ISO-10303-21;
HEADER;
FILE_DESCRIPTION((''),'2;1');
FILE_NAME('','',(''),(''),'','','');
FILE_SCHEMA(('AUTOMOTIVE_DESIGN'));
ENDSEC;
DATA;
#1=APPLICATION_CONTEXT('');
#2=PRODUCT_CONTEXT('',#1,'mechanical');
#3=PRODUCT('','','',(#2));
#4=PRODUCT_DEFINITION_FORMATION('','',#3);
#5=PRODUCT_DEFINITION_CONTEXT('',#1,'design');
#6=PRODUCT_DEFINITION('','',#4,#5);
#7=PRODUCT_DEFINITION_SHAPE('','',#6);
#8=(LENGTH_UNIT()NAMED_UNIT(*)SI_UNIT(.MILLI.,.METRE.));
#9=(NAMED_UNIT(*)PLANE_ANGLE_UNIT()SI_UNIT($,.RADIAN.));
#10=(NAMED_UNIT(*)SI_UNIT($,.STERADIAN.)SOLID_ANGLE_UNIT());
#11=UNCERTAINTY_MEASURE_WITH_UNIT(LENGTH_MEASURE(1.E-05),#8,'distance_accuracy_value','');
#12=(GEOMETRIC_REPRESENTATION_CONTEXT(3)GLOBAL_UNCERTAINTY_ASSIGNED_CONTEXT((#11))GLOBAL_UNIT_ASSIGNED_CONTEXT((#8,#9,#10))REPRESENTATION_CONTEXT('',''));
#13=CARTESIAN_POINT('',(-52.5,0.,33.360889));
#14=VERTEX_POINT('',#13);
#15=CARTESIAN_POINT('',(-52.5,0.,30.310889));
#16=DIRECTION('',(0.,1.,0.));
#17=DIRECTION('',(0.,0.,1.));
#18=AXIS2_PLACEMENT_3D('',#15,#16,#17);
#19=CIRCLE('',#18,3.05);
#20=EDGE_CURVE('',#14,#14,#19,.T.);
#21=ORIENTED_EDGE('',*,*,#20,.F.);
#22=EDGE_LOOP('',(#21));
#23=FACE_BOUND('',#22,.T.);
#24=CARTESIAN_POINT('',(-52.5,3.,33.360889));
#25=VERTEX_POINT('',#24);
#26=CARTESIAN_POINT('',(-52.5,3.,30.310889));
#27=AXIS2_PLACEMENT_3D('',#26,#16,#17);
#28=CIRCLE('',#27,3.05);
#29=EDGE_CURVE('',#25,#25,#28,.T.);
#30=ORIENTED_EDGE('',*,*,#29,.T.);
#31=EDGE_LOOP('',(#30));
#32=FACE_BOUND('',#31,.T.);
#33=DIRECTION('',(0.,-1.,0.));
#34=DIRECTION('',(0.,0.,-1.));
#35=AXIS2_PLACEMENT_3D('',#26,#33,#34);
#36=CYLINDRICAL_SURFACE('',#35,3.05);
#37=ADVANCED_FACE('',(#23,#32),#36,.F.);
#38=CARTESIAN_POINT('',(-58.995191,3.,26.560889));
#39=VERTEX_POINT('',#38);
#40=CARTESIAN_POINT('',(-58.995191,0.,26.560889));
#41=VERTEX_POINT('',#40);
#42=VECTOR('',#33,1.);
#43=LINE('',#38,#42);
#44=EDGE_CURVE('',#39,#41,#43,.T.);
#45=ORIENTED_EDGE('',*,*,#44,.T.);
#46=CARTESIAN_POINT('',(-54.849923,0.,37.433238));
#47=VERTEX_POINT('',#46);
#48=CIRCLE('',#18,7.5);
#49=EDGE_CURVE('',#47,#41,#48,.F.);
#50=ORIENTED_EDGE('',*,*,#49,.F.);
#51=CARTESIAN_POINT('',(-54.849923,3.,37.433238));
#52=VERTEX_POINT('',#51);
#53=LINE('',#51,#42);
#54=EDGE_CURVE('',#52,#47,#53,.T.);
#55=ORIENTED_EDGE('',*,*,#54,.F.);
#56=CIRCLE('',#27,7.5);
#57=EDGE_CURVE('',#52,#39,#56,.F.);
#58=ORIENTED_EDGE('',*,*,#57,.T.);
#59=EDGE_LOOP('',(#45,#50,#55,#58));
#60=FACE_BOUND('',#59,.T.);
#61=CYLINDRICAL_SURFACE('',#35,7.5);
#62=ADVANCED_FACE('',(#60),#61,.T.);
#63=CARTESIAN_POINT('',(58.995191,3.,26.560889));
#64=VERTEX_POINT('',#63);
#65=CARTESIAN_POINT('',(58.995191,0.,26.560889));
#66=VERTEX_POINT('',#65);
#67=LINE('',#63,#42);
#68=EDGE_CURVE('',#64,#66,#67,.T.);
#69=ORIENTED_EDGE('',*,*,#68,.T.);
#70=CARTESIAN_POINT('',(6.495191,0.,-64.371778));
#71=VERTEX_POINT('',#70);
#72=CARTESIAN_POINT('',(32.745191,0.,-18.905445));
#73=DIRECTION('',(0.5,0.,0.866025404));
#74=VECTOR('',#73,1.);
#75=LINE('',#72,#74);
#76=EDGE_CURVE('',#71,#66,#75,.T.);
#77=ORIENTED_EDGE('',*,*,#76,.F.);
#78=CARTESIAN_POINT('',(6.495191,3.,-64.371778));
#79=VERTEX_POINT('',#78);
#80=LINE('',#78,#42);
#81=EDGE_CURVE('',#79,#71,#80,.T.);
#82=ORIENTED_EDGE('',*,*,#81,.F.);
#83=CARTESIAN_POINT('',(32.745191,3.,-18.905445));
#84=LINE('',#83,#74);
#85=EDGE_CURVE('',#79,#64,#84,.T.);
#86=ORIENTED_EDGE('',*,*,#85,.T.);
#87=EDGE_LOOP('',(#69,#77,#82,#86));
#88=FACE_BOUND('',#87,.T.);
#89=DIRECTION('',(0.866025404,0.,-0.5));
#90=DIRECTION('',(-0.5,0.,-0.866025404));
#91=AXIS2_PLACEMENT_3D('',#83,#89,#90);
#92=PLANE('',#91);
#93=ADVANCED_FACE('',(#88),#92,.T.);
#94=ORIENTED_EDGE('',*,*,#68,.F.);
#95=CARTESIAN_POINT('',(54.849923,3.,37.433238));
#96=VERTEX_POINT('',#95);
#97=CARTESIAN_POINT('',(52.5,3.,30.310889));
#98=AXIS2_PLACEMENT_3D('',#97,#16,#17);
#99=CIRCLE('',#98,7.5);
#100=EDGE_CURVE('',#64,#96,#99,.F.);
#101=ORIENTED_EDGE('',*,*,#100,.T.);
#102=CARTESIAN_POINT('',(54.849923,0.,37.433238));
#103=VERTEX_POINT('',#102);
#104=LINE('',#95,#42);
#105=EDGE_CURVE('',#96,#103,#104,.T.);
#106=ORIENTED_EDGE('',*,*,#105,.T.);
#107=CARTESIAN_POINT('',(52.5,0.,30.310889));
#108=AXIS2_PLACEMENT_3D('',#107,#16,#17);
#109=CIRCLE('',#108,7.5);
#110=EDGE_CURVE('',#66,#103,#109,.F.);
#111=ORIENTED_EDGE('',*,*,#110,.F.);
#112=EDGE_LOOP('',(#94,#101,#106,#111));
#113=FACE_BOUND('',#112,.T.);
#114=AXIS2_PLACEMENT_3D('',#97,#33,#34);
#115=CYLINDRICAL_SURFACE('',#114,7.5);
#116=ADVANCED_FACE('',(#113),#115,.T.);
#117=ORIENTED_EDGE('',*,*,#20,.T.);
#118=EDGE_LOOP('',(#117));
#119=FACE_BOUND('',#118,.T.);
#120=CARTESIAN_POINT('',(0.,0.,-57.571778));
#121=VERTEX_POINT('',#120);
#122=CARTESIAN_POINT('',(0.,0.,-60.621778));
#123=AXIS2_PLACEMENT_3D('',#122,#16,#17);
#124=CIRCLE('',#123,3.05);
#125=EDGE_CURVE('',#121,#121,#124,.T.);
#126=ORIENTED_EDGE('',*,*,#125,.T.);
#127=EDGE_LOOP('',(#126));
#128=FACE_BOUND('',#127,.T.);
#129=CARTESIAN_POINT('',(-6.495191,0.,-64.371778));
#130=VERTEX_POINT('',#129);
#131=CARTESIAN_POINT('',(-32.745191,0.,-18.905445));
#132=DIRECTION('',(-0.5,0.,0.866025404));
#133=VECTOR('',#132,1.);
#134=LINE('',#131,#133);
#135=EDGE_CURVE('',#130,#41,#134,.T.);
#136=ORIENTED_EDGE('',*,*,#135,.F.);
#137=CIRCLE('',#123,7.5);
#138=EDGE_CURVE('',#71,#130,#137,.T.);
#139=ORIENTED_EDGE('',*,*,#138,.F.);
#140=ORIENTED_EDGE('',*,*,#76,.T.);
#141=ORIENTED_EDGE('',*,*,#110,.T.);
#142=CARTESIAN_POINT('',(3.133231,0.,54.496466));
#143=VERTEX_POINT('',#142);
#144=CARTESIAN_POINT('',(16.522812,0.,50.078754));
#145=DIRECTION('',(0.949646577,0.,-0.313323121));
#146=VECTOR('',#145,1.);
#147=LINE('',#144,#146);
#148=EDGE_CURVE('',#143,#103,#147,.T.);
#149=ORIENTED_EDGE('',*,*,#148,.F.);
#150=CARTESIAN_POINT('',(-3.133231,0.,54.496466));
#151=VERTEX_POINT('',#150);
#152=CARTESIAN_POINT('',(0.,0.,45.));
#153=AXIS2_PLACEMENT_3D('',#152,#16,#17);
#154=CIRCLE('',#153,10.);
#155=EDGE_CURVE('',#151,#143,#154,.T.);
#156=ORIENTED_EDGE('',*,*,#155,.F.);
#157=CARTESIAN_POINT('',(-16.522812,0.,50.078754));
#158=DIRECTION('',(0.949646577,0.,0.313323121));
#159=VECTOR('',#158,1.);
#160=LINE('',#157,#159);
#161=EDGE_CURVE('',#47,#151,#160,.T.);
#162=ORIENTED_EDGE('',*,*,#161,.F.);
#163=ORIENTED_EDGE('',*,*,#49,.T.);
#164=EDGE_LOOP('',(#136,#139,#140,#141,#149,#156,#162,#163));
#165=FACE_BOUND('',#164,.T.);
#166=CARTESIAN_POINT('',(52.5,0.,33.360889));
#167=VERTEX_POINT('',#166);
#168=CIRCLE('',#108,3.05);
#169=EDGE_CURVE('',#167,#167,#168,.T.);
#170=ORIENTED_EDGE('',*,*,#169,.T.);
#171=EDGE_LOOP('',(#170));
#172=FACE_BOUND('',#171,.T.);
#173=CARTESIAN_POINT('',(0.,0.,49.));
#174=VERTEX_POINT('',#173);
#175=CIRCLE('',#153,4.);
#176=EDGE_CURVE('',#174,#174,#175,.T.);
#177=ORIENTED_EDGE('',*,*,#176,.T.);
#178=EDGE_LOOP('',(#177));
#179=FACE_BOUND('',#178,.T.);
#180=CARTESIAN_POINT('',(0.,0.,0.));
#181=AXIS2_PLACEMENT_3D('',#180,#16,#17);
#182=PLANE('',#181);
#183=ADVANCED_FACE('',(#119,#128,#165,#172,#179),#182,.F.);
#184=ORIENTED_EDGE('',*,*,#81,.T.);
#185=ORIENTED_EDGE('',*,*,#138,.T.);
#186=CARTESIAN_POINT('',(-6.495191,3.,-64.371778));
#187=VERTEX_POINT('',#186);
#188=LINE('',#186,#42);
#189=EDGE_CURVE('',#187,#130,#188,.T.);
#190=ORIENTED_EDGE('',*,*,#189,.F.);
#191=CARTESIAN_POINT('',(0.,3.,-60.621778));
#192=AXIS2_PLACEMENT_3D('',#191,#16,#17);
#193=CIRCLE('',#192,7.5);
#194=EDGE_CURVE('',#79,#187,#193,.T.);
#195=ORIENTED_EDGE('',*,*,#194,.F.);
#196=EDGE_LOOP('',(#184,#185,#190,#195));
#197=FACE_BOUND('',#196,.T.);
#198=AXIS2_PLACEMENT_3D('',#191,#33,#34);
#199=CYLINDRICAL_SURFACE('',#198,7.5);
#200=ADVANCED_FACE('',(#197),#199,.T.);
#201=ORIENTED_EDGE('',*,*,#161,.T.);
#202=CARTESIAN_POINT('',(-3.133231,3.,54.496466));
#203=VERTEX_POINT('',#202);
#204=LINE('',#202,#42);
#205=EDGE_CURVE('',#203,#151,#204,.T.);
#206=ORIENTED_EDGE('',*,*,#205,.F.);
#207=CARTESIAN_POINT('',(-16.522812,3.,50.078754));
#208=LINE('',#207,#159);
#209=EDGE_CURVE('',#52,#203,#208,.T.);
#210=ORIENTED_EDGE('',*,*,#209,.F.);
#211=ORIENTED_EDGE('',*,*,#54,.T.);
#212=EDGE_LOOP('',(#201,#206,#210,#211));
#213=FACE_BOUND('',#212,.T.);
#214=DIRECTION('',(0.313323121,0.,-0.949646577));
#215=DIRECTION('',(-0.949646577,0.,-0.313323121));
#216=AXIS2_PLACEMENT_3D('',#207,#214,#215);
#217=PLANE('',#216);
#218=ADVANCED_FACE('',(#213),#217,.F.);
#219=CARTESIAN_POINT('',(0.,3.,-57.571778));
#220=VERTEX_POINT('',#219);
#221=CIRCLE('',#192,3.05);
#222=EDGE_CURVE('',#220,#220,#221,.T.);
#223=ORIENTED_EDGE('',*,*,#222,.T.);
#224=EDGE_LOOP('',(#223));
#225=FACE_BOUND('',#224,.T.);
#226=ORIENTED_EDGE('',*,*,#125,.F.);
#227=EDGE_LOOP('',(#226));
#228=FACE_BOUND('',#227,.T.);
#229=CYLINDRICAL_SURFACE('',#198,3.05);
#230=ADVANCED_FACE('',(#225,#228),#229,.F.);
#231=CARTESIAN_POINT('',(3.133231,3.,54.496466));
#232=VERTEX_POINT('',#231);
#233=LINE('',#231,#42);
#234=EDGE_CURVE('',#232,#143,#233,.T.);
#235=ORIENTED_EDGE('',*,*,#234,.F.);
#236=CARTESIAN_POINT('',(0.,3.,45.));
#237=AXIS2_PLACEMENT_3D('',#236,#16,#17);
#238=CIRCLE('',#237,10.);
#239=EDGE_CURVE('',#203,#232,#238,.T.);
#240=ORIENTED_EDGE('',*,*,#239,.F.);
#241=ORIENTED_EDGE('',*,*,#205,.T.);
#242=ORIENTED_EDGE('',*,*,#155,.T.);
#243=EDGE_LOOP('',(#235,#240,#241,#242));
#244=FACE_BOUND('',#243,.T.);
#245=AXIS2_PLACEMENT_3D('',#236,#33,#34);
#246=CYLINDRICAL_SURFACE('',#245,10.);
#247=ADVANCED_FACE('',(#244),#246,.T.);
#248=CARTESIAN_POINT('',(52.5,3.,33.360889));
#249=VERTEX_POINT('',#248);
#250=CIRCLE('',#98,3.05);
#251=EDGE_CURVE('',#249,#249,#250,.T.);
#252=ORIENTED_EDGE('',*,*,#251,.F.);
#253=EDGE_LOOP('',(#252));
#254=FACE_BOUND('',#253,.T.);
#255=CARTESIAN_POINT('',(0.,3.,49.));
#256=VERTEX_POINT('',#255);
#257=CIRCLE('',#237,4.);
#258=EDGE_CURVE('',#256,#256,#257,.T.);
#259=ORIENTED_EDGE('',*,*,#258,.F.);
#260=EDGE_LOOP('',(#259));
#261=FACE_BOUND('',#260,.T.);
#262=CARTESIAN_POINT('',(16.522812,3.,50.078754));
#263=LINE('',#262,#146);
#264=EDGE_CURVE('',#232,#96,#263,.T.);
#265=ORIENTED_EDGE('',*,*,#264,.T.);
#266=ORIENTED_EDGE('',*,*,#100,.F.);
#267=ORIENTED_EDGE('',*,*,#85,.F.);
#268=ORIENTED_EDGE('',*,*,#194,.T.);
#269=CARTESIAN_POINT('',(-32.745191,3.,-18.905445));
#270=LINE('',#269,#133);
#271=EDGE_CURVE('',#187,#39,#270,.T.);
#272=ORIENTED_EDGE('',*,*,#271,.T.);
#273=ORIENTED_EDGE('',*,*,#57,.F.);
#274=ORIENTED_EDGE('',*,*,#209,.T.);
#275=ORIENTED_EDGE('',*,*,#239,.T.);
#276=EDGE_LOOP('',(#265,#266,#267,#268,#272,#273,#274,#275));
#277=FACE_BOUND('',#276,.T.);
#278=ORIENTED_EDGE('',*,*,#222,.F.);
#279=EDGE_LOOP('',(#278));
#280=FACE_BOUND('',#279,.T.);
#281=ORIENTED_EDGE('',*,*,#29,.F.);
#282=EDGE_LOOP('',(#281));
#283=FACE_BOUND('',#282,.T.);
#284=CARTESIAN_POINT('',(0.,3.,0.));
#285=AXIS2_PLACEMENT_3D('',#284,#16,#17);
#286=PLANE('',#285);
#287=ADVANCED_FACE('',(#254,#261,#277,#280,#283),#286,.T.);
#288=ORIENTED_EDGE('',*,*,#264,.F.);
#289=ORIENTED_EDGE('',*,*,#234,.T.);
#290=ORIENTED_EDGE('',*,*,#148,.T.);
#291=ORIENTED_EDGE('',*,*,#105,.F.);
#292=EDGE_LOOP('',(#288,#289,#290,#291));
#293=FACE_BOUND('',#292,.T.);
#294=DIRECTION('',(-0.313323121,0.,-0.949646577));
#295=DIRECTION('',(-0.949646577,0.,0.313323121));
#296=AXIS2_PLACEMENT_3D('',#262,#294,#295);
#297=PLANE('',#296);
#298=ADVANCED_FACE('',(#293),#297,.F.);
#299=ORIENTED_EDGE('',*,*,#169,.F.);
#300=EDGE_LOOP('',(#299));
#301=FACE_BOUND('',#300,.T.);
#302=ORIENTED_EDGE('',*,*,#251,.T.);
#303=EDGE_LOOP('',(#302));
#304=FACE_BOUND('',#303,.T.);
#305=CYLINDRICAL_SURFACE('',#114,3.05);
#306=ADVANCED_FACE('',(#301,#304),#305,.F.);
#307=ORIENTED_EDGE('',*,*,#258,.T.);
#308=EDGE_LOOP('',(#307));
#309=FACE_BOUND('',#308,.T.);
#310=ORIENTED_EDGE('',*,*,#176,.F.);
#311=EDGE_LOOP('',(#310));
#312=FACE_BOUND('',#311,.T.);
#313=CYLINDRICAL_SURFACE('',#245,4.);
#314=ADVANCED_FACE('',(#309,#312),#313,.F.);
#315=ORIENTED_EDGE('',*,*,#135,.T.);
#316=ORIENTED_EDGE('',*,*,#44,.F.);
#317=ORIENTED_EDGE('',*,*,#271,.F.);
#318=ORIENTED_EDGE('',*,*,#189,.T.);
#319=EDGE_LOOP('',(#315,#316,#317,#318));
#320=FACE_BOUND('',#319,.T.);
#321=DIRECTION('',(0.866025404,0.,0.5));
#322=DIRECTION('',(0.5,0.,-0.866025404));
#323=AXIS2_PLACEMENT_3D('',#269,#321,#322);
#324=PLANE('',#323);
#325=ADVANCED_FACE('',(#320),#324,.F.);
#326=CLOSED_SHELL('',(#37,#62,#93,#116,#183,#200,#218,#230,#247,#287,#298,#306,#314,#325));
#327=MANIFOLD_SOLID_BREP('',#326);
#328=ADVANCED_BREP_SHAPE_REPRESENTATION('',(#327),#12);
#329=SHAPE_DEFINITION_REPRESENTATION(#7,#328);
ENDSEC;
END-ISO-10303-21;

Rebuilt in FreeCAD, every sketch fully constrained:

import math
import FreeCAD as App
import Part
import Sketcher
Q = App.Units.Quantity

doc = App.newDocument("Part")
body = doc.addObject("PartDesign::Body", "Body")

# Sketch on XZ plane
sketch1 = body.newObject("Sketcher::SketchObject", "Sketch")
sketch1.AttachmentSupport = (doc.getObject("XZ_Plane"), [""])
sketch1.MapMode = "FlatFace"
sketch1.addGeometry([
    Part.LineSegment(App.Vector(59, 26.6, 0), App.Vector(6.5, -64.4, 0)),  # 0
    Part.ArcOfCircle(Part.Circle(App.Vector(0, -60.6, 0), App.Vector(0, 0, 1), 7.5), math.radians(-150), math.radians(-30)),  # 1
    Part.LineSegment(App.Vector(-6.5, -64.4, 0), App.Vector(-59, 26.6, 0)),  # 2
    Part.ArcOfCircle(Part.Circle(App.Vector(-52.5, 30.3, 0), App.Vector(0, 0, 1), 7.5), math.radians(108), math.radians(210)),  # 3
    Part.LineSegment(App.Vector(-54.8, 37.4, 0), App.Vector(-3.1, 54.5, 0)),  # 4
    Part.ArcOfCircle(Part.Circle(App.Vector(0, 45, 0), App.Vector(0, 0, 1), 10), math.radians(72), math.radians(108)),  # 5
    Part.LineSegment(App.Vector(3.1, 54.5, 0), App.Vector(54.8, 37.4, 0)),  # 6
    Part.ArcOfCircle(Part.Circle(App.Vector(52.5, 30.3, 0), App.Vector(0, 0, 1), 7.5), math.radians(-30), math.radians(72)),  # 7
    Part.Circle(App.Vector(52.5, 30.3, 0), App.Vector(0, 0, 1), 3),  # 8
    Part.Circle(App.Vector(0, 45, 0), App.Vector(0, 0, 1), 4),  # 9
    Part.Circle(App.Vector(-52.5, 30.3, 0), App.Vector(0, 0, 1), 3),  # 10
    Part.Circle(App.Vector(0, -60.6, 0), App.Vector(0, 0, 1), 3),  # 11
], False)
sketch1.addConstraint([
    Sketcher.Constraint("Tangent", 0, 2, 1, 2),
    Sketcher.Constraint("Tangent", 1, 1, 2, 1),
    Sketcher.Constraint("Tangent", 2, 2, 3, 2),
    Sketcher.Constraint("Tangent", 3, 1, 4, 1),
    Sketcher.Constraint("Tangent", 4, 2, 5, 2),
    Sketcher.Constraint("Tangent", 5, 1, 6, 1),
    Sketcher.Constraint("Tangent", 6, 2, 7, 2),
    Sketcher.Constraint("Tangent", 7, 1, 0, 1),
    Sketcher.Constraint("Coincident", 8, 3, 7, 3),
    Sketcher.Constraint("Coincident", 9, 3, 5, 3),
    Sketcher.Constraint("Coincident", 10, 3, 3, 3),
    Sketcher.Constraint("Coincident", 11, 3, 1, 3),
    Sketcher.Constraint("Equal", 1, 3),
    Sketcher.Constraint("Equal", 3, 7),
    Sketcher.Constraint("Equal", 8, 10),
    Sketcher.Constraint("Equal", 10, 11),
    Sketcher.Constraint("Symmetric", 3, 3, 7, 3, -2),
    Sketcher.Constraint("PointOnObject", 1, 3, -2),
    Sketcher.Constraint("PointOnObject", 5, 3, -2),
    Sketcher.Constraint("Diameter", 9, 8.0),
    Sketcher.Constraint("Radius", 5, 10.0),
    Sketcher.Constraint("Diameter", 8, 6.1),
    Sketcher.Constraint("Radius", 1, 7.5),
    Sketcher.Constraint("Angle", 0, Q("-120 deg")),
    Sketcher.Constraint("Distance", 0, 105.0),
    Sketcher.Constraint("DistanceY", -1, 1, 5, 3, 45.0),
    Sketcher.Constraint("DistanceY", 1, 3, -1, 1, 60.621778),
])
pad1 = body.newObject("PartDesign::Pad", "Pad")
pad1.Profile = sketch1
pad1.Length = 3
pad1.Reversed = True

doc.recompute()
